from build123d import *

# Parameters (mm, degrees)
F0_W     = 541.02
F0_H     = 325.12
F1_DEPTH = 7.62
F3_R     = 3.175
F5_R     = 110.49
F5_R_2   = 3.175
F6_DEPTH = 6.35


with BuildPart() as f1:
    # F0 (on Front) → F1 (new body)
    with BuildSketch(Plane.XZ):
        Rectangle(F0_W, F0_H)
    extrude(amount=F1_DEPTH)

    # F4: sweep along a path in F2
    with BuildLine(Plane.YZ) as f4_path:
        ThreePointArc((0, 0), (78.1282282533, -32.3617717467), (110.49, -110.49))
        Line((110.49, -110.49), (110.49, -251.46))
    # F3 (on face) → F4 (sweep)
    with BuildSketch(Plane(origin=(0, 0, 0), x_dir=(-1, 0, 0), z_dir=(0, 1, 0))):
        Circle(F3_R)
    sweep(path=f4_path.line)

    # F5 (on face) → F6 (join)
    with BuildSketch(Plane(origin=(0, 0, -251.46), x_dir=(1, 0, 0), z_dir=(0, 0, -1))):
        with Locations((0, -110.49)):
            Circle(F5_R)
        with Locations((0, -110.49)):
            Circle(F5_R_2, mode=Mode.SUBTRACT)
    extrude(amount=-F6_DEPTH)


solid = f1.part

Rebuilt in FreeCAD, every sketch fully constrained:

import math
import FreeCAD as App
import Part
import Sketcher

V = App.Vector
Q = App.Units.Quantity

doc = App.newDocument("Part")
body = doc.addObject("PartDesign::Body", "Body")

sketch1 = body.newObject("Sketcher::SketchObject", "Sketch")
sketch1.AttachmentSupport = (doc.getObject("XZ_Plane"), [""])
sketch1.MapMode = "FlatFace"
sketch1.addGeometry(Part.LineSegment(V(-271, 163, 0), V(-271, -163, 0)), False)
sketch1.addGeometry(Part.LineSegment(V(-271, -163, 0), V(271, -163, 0)), False)
sketch1.addGeometry(Part.LineSegment(V(271, -163, 0), V(271, 163, 0)), False)
sketch1.addGeometry(Part.LineSegment(V(271, 163, 0), V(-271, 163, 0)), False)
sketch1.addConstraint(Sketcher.Constraint("Coincident", 0, 2, 1, 1))
sketch1.addConstraint(Sketcher.Constraint("Coincident", 1, 2, 2, 1))
sketch1.addConstraint(Sketcher.Constraint("Coincident", 2, 2, 3, 1))
sketch1.addConstraint(Sketcher.Constraint("Coincident", 3, 2, 0, 1))
sketch1.addConstraint(Sketcher.Constraint("Vertical", 0))
sketch1.addConstraint(Sketcher.Constraint("Horizontal", 1))
sketch1.addConstraint(Sketcher.Constraint("Vertical", 2))
sketch1.addConstraint(Sketcher.Constraint("Horizontal", 3))
sketch1.addConstraint(Sketcher.Constraint("Symmetric", 0, 2, 2, 2, -1, 1))
sketch1.addConstraint(Sketcher.Constraint("DistanceX", 1, 1, 1, 2, Q("21.3 in")))
sketch1.addConstraint(Sketcher.Constraint("DistanceY", 0, 2, 0, 1, Q("12.8 in")))
pad1 = body.newObject("PartDesign::Pad", "Pad")
pad1.Profile = sketch1
pad1.Length = Q("0.3 in")

sketch2 = body.newObject("Sketcher::SketchObject", "Sketch001")
sketch2.AttachmentSupport = (doc.getObject("XZ_Plane"), [""])
sketch2.MapMode = "FlatFace"
sketch2.addGeometry(Part.Circle(V(0, 0, 0), V(0, 0, 1), 3.2), False)
sketch2.addConstraint(Sketcher.Constraint("Coincident", 0, 3, -1, 1))
sketch2.addConstraint(Sketcher.Constraint("Diameter", 0, Q("0.25 in")))

sketch3 = body.newObject("Sketcher::SketchObject", "Sketch002")
sketch3.AttachmentSupport = (doc.getObject("YZ_Plane"), [""])
sketch3.MapMode = "FlatFace"
sketch3.addGeometry(Part.ArcOfCircle(Part.Circle(V(0, -110, 0), V(0, 0, 1), 110), math.radians(0), math.radians(90)), False)
sketch3.addGeometry(Part.LineSegment(V(110, -110, 0), V(110, -251, 0)), False)
sketch3.addConstraint(Sketcher.Constraint("Tangent", 0, 1, 1, 1))
sketch3.addConstraint(Sketcher.Constraint("Vertical", 1))
sketch3.addConstraint(Sketcher.Constraint("Coincident", 0, 2, -1, 1))
sketch3.addConstraint(Sketcher.Constraint("PointOnObject", 0, 3, -2))
sketch3.addConstraint(Sketcher.Constraint("Radius", 0, Q("4.35 in")))
sketch3.addConstraint(Sketcher.Constraint("DistanceY", 1, 2, 1, 1, Q("5.55 in")))
doc.recompute()

additivepipe = body.newObject("PartDesign::AdditivePipe", "AdditivePipe")
additivepipe.Profile = sketch2
additivepipe.Spine = (sketch3, ["Edge1", "Edge2"])

sketch4 = body.newObject("Sketcher::SketchObject", "Sketch003")
sketch4.AttachmentSupport = (doc.getObject("XY_Plane"), [""])
sketch4.MapMode = "FlatFace"
sketch4.AttachmentOffset = App.Placement(V(0, 0, -9.9 * 25.4), App.Rotation())
sketch4.addGeometry(Part.Circle(V(0, 110.5, 0), V(0, 0, 1), 110.5), False)
sketch4.addGeometry(Part.Circle(V(0, 110.5, 0), V(0, 0, 1), 3.2), False)
sketch4.addConstraint(Sketcher.Constraint("Coincident", 1, 3, 0, 3))
sketch4.addConstraint(Sketcher.Constraint("PointOnObject", 0, 3, -2))
sketch4.addConstraint(Sketcher.Constraint("Diameter", 0, Q("8.7 in")))
sketch4.addConstraint(Sketcher.Constraint("Diameter", 1, Q("0.25 in")))
sketch4.addConstraint(Sketcher.Constraint("DistanceY", -1, 1, 0, 3, Q("4.35 in")))
pad2 = body.newObject("PartDesign::Pad", "Pad001")
pad2.Profile = sketch4
pad2.Length = Q("0.25 in")

doc.recompute()
